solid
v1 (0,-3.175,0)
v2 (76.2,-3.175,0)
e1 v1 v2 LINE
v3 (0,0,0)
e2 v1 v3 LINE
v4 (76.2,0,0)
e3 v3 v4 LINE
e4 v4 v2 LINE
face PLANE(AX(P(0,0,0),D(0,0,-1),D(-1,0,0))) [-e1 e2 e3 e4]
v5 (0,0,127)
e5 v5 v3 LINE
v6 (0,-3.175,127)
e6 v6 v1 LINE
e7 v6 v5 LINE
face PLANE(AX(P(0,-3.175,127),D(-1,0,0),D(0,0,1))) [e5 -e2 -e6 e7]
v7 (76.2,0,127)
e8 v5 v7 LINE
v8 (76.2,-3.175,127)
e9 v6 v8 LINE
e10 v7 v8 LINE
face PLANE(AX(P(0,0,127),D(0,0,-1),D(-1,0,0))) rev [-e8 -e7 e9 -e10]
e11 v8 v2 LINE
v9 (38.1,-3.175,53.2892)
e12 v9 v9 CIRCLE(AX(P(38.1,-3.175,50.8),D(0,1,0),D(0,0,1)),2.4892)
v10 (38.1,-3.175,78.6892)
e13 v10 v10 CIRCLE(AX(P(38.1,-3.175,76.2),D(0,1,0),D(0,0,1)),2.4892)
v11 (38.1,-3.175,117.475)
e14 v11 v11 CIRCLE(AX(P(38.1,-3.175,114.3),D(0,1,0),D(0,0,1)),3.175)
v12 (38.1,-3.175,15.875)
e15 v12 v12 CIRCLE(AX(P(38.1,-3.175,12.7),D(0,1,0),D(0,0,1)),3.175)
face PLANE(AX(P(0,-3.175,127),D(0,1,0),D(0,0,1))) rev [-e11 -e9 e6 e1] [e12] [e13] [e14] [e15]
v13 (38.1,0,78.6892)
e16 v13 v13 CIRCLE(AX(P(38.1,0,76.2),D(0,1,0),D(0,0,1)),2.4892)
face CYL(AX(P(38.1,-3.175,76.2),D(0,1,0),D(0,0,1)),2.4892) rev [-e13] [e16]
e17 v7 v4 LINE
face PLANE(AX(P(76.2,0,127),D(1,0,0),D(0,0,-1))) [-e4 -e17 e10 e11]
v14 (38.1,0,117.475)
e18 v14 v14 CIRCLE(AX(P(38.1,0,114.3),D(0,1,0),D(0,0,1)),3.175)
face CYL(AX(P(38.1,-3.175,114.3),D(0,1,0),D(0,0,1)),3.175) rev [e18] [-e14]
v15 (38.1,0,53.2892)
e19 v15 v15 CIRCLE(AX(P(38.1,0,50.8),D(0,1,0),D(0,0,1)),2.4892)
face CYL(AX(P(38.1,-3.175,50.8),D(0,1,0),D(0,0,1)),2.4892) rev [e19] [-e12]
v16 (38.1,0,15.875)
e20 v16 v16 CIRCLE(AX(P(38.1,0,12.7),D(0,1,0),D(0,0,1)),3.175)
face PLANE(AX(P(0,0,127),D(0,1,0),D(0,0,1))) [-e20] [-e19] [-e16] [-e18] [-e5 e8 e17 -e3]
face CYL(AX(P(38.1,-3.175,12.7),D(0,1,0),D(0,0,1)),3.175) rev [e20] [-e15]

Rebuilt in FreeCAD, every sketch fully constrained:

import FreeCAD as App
import Part
import Sketcher

V = App.Vector
Q = App.Units.Quantity

doc = App.newDocument("Part")
body = doc.addObject("PartDesign::Body", "Body")

# Sketch on XY plane
sketch1 = body.newObject("Sketcher::SketchObject", "Sketch")
sketch1.AttachmentSupport = (doc.getObject("XY_Plane"), [""])
sketch1.MapMode = "FlatFace"
sketch1.addGeometry(Part.LineSegment(V(0, 0, 0), V(0, -3.175, 0)), False)
sketch1.addGeometry(Part.LineSegment(V(0, -3.175, 0), V(76.2, -3.175, 0)), False)
sketch1.addGeometry(Part.LineSegment(V(76.2, -3.175, 0), V(76.2, 0, 0)), False)
sketch1.addGeometry(Part.LineSegment(V(76.2, 0, 0), V(0, 0, 0)), False)
sketch1.addConstraint(Sketcher.Constraint("Coincident", 0, 2, 1, 1))
sketch1.addConstraint(Sketcher.Constraint("Coincident", 1, 2, 2, 1))
sketch1.addConstraint(Sketcher.Constraint("Coincident", 2, 2, 3, 1))
sketch1.addConstraint(Sketcher.Constraint("Coincident", 3, 2, 0, 1))
sketch1.addConstraint(Sketcher.Constraint("Vertical", 0))
sketch1.addConstraint(Sketcher.Constraint("Horizontal", 1))
sketch1.addConstraint(Sketcher.Constraint("Vertical", 2))
sketch1.addConstraint(Sketcher.Constraint("Horizontal", 3))
sketch1.addConstraint(Sketcher.Constraint("Coincident", 3, 2, -1, 1))
sketch1.addConstraint(Sketcher.Constraint("DistanceX", 1, 1, 1, 2, Q("3 in")))
sketch1.addConstraint(Sketcher.Constraint("DistanceY", 0, 2, 0, 1, Q("0.125 in")))
pad1 = body.newObject("PartDesign::Pad", "Pad")
pad1.Profile = sketch1
pad1.Length = Q("5 in")

# Sketch on XZ plane
sketch2 = body.newObject("Sketcher::SketchObject", "Sketch001")
sketch2.AttachmentSupport = (doc.getObject("XZ_Plane"), [""])
sketch2.MapMode = "FlatFace"
sketch2.addGeometry(Part.Circle(V(38.1, 12.7, 0), V(0, 0, 1), 3.175), False)
sketch2.addGeometry(Part.Circle(V(38.1, 50.8, 0), V(0, 0, 1), 2.4892), False)
sketch2.addGeometry(Part.Circle(V(38.1, 76.2, 0), V(0, 0, 1), 2.4892), False)
sketch2.addGeometry(Part.Circle(V(38.1, 114.3, 0), V(0, 0, 1), 3.175), False)
sketch2.addConstraint(Sketcher.Constraint("Equal", 1, 2))
sketch2.addConstraint(Sketcher.Constraint("Equal", 0, 3))
sketch2.addConstraint(Sketcher.Constraint("Vertical", 0, 3, 1, 3))
sketch2.addConstraint(Sketcher.Constraint("Vertical", 1, 3, 2, 3))
sketch2.addConstraint(Sketcher.Constraint("Vertical", 2, 3, 3, 3))
sketch2.addConstraint(Sketcher.Constraint("Diameter", 0, Q("0.25 in")))
sketch2.addConstraint(Sketcher.Constraint("Diameter", 1, Q("0.196 in")))
sketch2.addConstraint(Sketcher.Constraint("DistanceY", -1, 1, 1, 3, Q("2 in")))
sketch2.addConstraint(Sketcher.Constraint("DistanceY", -1, 1, 2, 3, Q("3 in")))
sketch2.addConstraint(Sketcher.Constraint("DistanceY", 0, 3, 3, 3, Q("4 in")))
sketch2.addConstraint(Sketcher.Constraint("DistanceX", -1, 1, 0, 3, Q("1.5 in")))
sketch2.addConstraint(Sketcher.Constraint("DistanceY", -1, 1, 0, 3, Q("0.5 in")))
pocket1 = body.newObject("PartDesign::Pocket", "Pocket")
pocket1.Profile = sketch2
pocket1.Type = "ThroughAll"
pocket1.Reversed = True

doc.recompute()
